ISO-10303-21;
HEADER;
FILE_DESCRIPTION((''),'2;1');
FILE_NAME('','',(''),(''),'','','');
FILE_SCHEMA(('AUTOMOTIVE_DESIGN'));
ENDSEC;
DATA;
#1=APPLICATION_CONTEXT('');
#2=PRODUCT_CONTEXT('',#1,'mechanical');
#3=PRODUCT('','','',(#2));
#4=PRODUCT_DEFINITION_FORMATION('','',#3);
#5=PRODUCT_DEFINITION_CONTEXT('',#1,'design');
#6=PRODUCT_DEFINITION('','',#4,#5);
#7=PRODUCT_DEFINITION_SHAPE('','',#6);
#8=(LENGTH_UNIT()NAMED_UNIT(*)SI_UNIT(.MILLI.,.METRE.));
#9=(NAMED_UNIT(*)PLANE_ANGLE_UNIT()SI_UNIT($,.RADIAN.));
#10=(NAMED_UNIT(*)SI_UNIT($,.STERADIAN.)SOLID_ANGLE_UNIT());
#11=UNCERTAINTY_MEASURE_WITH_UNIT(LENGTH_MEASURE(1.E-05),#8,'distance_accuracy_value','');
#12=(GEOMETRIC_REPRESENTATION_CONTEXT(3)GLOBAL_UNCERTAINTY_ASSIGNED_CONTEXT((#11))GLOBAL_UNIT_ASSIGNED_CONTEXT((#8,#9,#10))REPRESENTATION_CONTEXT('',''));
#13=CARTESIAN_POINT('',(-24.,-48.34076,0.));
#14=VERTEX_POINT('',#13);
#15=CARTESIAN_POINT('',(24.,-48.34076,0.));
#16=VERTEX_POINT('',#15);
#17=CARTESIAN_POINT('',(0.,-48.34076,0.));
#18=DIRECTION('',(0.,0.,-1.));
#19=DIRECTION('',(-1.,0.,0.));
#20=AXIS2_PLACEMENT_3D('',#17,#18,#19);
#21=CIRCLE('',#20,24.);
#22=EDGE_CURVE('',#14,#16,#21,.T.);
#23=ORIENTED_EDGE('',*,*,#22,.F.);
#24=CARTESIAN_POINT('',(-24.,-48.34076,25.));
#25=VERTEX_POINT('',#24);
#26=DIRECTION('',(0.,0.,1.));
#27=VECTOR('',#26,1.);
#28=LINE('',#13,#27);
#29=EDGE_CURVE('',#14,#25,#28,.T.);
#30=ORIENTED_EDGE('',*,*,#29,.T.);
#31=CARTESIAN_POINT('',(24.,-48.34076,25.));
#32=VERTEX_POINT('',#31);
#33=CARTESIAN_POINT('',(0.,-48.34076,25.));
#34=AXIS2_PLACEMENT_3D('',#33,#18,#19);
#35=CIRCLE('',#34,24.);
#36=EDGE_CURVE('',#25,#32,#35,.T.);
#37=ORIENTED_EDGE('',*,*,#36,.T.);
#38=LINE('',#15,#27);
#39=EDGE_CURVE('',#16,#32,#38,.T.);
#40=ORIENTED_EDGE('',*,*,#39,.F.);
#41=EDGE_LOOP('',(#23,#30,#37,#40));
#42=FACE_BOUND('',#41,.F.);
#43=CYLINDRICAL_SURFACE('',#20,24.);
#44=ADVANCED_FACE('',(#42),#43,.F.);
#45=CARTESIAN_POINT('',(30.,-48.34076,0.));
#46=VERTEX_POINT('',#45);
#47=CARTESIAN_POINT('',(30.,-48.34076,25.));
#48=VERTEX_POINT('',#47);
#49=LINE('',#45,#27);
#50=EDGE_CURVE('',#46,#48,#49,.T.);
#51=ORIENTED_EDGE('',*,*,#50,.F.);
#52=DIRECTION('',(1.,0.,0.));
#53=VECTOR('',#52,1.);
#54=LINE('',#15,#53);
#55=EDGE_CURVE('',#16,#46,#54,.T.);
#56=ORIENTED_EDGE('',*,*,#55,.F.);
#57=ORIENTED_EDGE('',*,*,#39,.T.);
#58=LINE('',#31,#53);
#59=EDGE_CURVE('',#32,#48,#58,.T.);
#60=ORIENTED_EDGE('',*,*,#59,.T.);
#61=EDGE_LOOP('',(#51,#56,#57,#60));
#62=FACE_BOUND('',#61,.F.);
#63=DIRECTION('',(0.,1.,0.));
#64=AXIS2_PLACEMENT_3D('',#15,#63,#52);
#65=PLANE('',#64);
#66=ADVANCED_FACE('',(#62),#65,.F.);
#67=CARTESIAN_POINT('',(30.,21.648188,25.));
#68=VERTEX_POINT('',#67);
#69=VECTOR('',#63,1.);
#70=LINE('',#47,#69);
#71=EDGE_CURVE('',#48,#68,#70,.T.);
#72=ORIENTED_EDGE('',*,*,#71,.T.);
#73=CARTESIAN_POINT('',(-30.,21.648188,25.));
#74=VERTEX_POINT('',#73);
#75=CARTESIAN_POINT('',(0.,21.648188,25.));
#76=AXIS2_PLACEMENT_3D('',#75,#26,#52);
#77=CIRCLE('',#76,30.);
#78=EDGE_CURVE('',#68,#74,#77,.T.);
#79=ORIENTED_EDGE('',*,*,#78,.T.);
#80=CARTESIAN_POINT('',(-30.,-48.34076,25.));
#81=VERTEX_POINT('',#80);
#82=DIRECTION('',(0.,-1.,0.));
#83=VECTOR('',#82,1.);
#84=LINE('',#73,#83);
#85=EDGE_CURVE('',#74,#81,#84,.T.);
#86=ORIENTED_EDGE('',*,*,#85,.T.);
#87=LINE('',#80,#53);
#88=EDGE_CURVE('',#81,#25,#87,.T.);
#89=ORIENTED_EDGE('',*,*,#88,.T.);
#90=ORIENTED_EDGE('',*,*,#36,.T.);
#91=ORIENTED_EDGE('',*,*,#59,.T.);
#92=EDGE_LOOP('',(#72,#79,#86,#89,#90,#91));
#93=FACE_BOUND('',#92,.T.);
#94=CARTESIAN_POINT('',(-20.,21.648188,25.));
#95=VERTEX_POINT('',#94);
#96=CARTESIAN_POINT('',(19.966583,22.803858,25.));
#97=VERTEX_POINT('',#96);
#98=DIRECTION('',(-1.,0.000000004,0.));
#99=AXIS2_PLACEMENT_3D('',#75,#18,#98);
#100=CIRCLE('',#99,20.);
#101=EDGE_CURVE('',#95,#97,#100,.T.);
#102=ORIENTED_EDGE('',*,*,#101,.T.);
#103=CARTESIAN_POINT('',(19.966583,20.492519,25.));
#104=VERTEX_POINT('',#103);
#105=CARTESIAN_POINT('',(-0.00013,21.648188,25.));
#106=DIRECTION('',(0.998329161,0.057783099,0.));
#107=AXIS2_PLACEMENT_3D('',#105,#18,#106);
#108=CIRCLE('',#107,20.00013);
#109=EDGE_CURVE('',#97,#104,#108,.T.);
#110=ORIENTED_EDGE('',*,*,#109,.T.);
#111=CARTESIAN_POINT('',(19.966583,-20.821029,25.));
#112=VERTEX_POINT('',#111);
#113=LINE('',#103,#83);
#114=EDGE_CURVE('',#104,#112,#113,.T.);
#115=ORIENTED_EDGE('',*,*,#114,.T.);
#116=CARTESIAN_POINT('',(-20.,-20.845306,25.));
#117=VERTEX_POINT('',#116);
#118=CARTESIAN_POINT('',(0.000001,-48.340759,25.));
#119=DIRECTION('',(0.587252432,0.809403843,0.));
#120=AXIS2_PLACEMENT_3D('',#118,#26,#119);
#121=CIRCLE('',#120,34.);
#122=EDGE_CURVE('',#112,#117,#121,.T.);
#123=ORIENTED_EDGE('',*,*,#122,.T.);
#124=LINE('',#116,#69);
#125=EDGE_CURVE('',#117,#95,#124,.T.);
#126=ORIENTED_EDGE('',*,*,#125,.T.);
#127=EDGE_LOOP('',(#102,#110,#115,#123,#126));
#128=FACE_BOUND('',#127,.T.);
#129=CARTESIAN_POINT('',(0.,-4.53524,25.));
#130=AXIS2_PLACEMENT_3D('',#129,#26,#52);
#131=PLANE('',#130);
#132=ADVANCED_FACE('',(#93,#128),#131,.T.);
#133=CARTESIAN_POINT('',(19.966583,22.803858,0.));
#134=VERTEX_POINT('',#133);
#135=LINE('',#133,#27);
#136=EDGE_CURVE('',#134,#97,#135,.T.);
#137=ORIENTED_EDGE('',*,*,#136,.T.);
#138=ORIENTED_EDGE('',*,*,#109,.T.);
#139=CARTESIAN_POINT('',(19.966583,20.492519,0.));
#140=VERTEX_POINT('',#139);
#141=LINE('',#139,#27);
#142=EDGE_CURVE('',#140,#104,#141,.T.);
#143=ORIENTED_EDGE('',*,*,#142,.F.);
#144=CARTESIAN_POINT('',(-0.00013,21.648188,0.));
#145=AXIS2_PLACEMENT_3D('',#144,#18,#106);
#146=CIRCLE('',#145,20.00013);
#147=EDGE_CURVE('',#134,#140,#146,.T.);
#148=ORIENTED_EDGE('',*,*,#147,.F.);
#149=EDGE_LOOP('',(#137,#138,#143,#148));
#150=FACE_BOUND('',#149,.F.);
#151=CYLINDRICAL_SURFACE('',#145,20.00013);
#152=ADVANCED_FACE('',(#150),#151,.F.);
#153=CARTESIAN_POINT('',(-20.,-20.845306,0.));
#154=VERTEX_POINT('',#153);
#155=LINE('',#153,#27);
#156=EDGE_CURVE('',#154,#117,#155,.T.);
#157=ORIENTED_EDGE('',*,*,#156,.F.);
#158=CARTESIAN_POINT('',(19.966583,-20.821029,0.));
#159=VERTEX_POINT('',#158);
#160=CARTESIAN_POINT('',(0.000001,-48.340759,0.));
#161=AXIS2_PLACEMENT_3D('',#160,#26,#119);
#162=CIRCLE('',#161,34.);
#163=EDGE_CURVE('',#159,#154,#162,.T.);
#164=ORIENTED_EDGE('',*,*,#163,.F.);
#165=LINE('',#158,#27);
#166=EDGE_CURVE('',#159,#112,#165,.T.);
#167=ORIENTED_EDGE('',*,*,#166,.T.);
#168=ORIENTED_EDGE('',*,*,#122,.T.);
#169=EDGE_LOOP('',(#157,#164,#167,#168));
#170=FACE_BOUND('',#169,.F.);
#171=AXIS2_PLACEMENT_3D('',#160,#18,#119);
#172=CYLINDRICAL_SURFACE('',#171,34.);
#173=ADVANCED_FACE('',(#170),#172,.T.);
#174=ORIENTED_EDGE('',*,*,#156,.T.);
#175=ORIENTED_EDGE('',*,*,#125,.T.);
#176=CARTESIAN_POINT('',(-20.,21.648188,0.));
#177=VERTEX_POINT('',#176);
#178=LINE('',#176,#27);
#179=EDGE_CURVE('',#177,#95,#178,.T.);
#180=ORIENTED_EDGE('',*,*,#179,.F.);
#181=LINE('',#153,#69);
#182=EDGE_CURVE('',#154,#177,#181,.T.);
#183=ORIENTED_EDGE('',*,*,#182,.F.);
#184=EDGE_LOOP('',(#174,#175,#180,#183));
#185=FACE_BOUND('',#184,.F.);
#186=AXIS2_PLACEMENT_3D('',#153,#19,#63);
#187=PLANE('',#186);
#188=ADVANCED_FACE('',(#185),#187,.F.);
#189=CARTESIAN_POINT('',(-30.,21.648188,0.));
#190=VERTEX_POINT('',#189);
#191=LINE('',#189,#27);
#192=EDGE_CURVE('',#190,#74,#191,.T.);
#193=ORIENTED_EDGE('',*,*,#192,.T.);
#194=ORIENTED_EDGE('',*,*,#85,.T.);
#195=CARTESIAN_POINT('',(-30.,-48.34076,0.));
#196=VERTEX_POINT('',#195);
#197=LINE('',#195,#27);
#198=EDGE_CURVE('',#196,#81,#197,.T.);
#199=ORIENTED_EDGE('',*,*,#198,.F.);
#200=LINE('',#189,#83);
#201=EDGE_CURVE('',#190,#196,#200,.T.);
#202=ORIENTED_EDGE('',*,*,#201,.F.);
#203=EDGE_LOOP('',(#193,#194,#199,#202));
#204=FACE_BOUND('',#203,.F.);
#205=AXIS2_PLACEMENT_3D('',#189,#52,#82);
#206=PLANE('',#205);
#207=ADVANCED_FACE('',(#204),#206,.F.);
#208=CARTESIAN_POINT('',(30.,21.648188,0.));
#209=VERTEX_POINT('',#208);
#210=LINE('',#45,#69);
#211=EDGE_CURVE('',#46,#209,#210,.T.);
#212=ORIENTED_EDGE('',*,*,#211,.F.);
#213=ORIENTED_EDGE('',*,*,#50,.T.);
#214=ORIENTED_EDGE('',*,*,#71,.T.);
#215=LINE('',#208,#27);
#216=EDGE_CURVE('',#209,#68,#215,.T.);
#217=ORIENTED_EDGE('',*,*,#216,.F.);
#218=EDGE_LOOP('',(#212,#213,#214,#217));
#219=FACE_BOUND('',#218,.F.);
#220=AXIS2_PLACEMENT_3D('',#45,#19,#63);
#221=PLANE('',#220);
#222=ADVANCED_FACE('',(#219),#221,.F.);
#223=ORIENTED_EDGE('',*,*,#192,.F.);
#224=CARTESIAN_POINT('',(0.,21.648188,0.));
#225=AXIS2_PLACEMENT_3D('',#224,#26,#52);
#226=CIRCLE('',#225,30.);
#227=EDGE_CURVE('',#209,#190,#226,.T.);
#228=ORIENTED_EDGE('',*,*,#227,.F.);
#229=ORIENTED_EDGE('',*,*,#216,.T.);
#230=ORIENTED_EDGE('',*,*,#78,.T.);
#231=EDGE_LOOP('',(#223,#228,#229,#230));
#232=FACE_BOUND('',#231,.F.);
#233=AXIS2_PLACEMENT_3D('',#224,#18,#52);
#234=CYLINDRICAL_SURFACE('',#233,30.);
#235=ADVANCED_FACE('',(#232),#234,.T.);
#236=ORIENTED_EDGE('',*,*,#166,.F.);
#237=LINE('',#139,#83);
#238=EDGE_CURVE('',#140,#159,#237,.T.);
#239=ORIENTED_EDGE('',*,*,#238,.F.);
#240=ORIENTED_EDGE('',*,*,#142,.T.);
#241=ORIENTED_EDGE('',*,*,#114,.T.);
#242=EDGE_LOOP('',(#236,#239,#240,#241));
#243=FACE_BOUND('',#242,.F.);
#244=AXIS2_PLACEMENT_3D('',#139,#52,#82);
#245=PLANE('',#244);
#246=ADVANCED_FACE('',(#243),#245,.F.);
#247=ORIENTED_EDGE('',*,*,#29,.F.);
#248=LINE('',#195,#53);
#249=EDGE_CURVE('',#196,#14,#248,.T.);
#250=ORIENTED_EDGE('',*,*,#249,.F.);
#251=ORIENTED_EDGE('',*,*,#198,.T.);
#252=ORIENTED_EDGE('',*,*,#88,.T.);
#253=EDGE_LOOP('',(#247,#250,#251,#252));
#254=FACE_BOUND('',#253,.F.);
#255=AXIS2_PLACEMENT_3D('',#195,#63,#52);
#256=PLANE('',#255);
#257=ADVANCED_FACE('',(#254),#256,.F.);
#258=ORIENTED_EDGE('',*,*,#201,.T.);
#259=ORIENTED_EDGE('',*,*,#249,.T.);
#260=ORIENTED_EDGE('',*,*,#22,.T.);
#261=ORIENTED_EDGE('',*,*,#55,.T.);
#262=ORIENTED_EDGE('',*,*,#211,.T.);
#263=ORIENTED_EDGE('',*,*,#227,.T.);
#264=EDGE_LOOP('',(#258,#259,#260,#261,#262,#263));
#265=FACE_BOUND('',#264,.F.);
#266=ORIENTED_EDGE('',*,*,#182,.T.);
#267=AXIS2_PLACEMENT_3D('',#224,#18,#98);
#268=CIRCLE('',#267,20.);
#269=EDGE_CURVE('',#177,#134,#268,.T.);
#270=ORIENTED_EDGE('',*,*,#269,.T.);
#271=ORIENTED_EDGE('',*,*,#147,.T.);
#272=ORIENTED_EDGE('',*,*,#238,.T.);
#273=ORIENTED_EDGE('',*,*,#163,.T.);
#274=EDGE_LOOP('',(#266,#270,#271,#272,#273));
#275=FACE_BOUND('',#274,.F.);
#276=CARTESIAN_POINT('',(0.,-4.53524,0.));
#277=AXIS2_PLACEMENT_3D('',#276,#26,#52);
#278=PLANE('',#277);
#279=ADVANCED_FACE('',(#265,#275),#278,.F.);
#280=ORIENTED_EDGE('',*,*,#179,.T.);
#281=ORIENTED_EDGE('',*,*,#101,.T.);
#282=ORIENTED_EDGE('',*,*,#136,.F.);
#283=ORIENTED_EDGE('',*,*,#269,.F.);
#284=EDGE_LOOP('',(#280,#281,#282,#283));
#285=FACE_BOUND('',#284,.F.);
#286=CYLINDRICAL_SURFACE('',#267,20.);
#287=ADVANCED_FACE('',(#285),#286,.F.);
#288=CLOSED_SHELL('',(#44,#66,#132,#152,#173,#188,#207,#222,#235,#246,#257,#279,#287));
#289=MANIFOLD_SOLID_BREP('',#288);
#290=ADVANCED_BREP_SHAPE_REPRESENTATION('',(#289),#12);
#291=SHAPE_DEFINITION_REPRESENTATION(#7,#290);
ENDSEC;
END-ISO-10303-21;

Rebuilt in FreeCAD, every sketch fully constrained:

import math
import FreeCAD as App
import Part
import Sketcher

doc = App.newDocument("Part")
body = doc.addObject("PartDesign::Body", "Body")

# Sketch on XY plane
sketch1 = body.newObject("Sketcher::SketchObject", "Sketch")
sketch1.AttachmentSupport = (doc.getObject("XY_Plane"), [""])
sketch1.MapMode = "FlatFace"
sketch1.addGeometry(Part.LineSegment(App.Vector(30, -48.34076, 0), App.Vector(30, 21.648188, 0)), False)
sketch1.addGeometry(Part.ArcOfCircle(Part.Circle(App.Vector(0, 21.648188, 0), App.Vector(0, 0, 1), 30), math.radians(0), math.radians(180)), False)
sketch1.addGeometry(Part.LineSegment(App.Vector(-30, 21.648188, 0), App.Vector(-30, -48.34076, 0)), False)
sketch1.addGeometry(Part.LineSegment(App.Vector(-30, -48.34076, 0), App.Vector(-24, -48.34076, 0)), False)
sketch1.addGeometry(Part.ArcOfCircle(Part.Circle(App.Vector(0, -48.34076, 0), App.Vector(0, 0, 1), 24), math.radians(0), math.radians(180)), False)
sketch1.addGeometry(Part.LineSegment(App.Vector(24, -48.34076, 0), App.Vector(30, -48.34076, 0)), False)
sketch1.addGeometry(Part.ArcOfCircle(Part.Circle(App.Vector(0, 21.648188, 0), App.Vector(0, 0, 1), 20), math.radians(3.312596), math.radians(180)), False)
sketch1.addGeometry(Part.ArcOfCircle(Part.Circle(App.Vector(-0.00013, 21.648188, 0), App.Vector(0, 0, 1), 20.00013), math.radians(-3.312573), math.radians(3.312573)), False)
sketch1.addGeometry(Part.LineSegment(App.Vector(19.966583, 20.492519, 0), App.Vector(19.966583, -20.821029, 0)), False)
sketch1.addGeometry(Part.ArcOfCircle(Part.Circle(App.Vector(0.000001, -48.340759, 0), App.Vector(0, 0, 1), 34), math.radians(54.037726), math.radians(126.031881)), False)
sketch1.addGeometry(Part.LineSegment(App.Vector(-20, -20.845306, 0), App.Vector(-20, 21.648188, 0)), False)
sketch1.addConstraint(Sketcher.Constraint("Coincident", 0, 2, 1, 1))
sketch1.addConstraint(Sketcher.Constraint("Coincident", 1, 2, 2, 1))
sketch1.addConstraint(Sketcher.Constraint("Coincident", 2, 2, 3, 1))
sketch1.addConstraint(Sketcher.Constraint("Coincident", 3, 2, 4, 2))
sketch1.addConstraint(Sketcher.Constraint("Coincident", 4, 1, 5, 1))
sketch1.addConstraint(Sketcher.Constraint("Coincident", 5, 2, 0, 1))
sketch1.addConstraint(Sketcher.Constraint("Coincident", 6, 1, 7, 2))
sketch1.addConstraint(Sketcher.Constraint("Coincident", 7, 1, 8, 1))
sketch1.addConstraint(Sketcher.Constraint("Coincident", 8, 2, 9, 1))
sketch1.addConstraint(Sketcher.Constraint("Coincident", 9, 2, 10, 1))
sketch1.addConstraint(Sketcher.Constraint("Coincident", 10, 2, 6, 2))
sketch1.addConstraint(Sketcher.Constraint("Vertical", 0))
sketch1.addConstraint(Sketcher.Constraint("Vertical", 2))
sketch1.addConstraint(Sketcher.Constraint("Horizontal", 3))
sketch1.addConstraint(Sketcher.Constraint("Horizontal", 5))
sketch1.addConstraint(Sketcher.Constraint("Vertical", 8))
sketch1.addConstraint(Sketcher.Constraint("Vertical", 10))
sketch1.addConstraint(Sketcher.Constraint("Coincident", 6, 3, 1, 3))
sketch1.addConstraint(Sketcher.Constraint("Coincident", 9, 3, 4, 3))
sketch1.addConstraint(Sketcher.Constraint("PointOnObject", 1, 3, -2))
sketch1.addConstraint(Sketcher.Constraint("PointOnObject", 4, 3, -2))
sketch1.addConstraint(Sketcher.Constraint("Radius", 1, 30.0))
sketch1.addConstraint(Sketcher.Constraint("Radius", 4, 24.0))
sketch1.addConstraint(Sketcher.Constraint("Radius", 6, 20.0))
sketch1.addConstraint(Sketcher.Constraint("Radius", 9, 34.0))
sketch1.addConstraint(Sketcher.Constraint("Radius", 7, 20.00013))
sketch1.addConstraint(Sketcher.Constraint("DistanceY", 0, 1, 0, 2, 69.988948))
sketch1.addConstraint(Sketcher.Constraint("DistanceY", 2, 2, 2, 1, 69.988948))
sketch1.addConstraint(Sketcher.Constraint("DistanceY", 8, 2, 8, 1, 41.313548))
sketch1.addConstraint(Sketcher.Constraint("DistanceY", 10, 1, 10, 2, 42.493494))
sketch1.addConstraint(Sketcher.Constraint("DistanceY", -1, 1, 1, 3, 21.648188))
sketch1.addConstraint(Sketcher.Constraint("DistanceY", 4, 3, -1, 1, 48.34076))
sketch1.addConstraint(Sketcher.Constraint("DistanceX", 7, 3, -1, 1, 0.00013))
sketch1.addConstraint(Sketcher.Constraint("DistanceY", -1, 1, 0, 2, 21.648188))
sketch1.addConstraint(Sketcher.Constraint("DistanceY", -1, 1, 1, 2, 21.648188))
sketch1.addConstraint(Sketcher.Constraint("DistanceY", 0, 2, 6, 1, 1.15567))
pad1 = body.newObject("PartDesign::Pad", "Pad")
pad1.Profile = sketch1
pad1.Length = 25

doc.recompute()
